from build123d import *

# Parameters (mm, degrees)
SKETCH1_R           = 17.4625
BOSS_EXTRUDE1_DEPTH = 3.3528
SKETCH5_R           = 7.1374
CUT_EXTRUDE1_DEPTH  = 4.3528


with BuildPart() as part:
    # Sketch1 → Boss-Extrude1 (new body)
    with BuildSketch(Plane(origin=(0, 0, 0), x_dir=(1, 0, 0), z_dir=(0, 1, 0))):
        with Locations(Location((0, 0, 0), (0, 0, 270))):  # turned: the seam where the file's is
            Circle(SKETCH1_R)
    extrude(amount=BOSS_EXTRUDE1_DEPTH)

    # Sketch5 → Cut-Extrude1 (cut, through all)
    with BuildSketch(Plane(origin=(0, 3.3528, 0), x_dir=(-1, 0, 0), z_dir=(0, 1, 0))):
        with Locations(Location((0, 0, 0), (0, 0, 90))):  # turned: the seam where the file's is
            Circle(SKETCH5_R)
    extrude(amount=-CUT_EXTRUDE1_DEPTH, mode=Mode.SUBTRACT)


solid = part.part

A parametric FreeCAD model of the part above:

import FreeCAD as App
import Part
import Sketcher
Q = App.Units.Quantity

doc = App.newDocument("Part")
body = doc.addObject("PartDesign::Body", "Body")

# Sketch on XZ plane
sketch1 = body.newObject("Sketcher::SketchObject", "Sketch")
sketch1.AttachmentSupport = (doc.getObject("XZ_Plane"), [""])
sketch1.MapMode = "FlatFace"
sketch1.addGeometry(Part.Circle(App.Vector(0, 0, 0), App.Vector(0, 0, 1), 17.4625), False)
sketch1.addConstraint(Sketcher.Constraint("Coincident", 0, 3, -1, 1))
sketch1.addConstraint(Sketcher.Constraint("Diameter", 0, Q("1.375 in")))
pad1 = body.newObject("PartDesign::Pad", "Pad")
pad1.Profile = sketch1
pad1.Length = Q("0.132 in")
pad1.Reversed = True

# Sketch on XZ plane
sketch2 = body.newObject("Sketcher::SketchObject", "Sketch001")
sketch2.AttachmentSupport = (doc.getObject("XZ_Plane"), [""])
sketch2.MapMode = "FlatFace"
sketch2.AttachmentOffset = App.Placement(App.Vector(0, 0, -0.132 * 25.4), App.Rotation())
sketch2.addGeometry(Part.Circle(App.Vector(0, 0, 0), App.Vector(0, 0, 1), 7.1374), False)
sketch2.addConstraint(Sketcher.Constraint("Coincident", 0, 3, -1, 1))
sketch2.addConstraint(Sketcher.Constraint("Diameter", 0, Q("0.562 in")))
pocket1 = body.newObject("PartDesign::Pocket", "Pocket")
pocket1.Profile = sketch2
pocket1.Type = "ThroughAll"
pocket1.Reversed = True

doc.recompute()
